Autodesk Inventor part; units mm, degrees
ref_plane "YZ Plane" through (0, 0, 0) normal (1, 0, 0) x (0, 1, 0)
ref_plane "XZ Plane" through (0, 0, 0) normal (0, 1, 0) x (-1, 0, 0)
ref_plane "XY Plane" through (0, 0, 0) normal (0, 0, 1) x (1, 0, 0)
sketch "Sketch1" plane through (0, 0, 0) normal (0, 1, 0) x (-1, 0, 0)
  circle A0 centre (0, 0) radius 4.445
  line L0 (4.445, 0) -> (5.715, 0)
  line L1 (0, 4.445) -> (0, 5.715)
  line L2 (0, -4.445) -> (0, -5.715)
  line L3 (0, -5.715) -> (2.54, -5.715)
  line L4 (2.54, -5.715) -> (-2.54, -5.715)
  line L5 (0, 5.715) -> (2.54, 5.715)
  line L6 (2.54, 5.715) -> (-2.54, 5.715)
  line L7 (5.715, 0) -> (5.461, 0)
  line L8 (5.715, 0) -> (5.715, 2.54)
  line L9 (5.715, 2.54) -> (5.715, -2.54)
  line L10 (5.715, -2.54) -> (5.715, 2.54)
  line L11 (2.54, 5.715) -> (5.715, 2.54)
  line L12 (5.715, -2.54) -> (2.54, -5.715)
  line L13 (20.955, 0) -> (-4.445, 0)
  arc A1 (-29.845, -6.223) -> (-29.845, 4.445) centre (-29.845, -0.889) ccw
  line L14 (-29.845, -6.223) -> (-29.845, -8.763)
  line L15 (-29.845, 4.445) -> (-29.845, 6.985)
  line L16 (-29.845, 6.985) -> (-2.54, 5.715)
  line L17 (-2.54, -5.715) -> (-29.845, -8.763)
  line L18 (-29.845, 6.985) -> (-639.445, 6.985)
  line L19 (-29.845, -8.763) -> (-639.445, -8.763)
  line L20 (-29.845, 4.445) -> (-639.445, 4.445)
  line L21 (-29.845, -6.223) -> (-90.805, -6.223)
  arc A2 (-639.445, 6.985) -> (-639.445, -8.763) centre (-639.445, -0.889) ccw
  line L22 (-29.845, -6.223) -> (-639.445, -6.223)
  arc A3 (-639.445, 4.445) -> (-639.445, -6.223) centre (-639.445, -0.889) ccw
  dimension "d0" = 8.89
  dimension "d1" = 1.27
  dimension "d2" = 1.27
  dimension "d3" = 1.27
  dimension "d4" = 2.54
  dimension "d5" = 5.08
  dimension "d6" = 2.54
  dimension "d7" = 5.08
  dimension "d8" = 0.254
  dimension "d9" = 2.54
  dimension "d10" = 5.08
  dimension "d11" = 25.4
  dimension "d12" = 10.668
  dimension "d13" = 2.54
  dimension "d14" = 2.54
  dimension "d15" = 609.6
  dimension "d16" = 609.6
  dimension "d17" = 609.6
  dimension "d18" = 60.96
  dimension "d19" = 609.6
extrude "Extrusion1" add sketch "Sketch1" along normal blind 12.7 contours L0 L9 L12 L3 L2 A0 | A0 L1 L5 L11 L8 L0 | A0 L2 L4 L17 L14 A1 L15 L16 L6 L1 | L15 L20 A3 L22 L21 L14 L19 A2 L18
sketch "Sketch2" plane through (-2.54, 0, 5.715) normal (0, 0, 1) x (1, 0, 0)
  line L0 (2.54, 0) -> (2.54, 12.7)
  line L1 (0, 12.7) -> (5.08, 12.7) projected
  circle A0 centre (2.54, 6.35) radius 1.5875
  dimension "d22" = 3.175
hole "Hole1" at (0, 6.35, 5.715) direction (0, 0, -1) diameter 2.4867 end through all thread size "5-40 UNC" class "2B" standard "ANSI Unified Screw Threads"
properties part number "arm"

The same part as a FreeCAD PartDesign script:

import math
import FreeCAD as App
import Part
import Sketcher
from FreeCAD import Vector
Q = App.Units.Quantity

doc = App.newDocument("Part")
params = doc.addObject("Spreadsheet::Sheet", "Params")
for row, (alias, value) in enumerate([
    ("sketch1_diameter", "0.35 in"),
    ("sketch1_width", "24 in"),
    ("sketch1_radius", "0.21 in"),
    ("sketch1_width2", "0.2 in"),
    ("pad1_length", "0.5 in"),
    ("hole_diameter", "0.0979016 in"),
], start=1):
    params.set(f"A{row}", alias)
    params.set(f"B{row}", "=" + value)
    params.setAlias(f"B{row}", alias)

body = doc.addObject("PartDesign::Body", "Body")

sketch1 = body.newObject("Sketcher::SketchObject", "Sketch")
sketch1.AttachmentSupport = (doc.getObject("XZ_Plane"), [""])
sketch1.MapMode = "FlatFace"
sketch1.addGeometry(Part.LineSegment(Vector(-5.7, -2.5, 0), Vector(-5.7, 2.5, 0)), False)
sketch1.addGeometry(Part.LineSegment(Vector(-5.7, 2.5, 0), Vector(-2.5, 5.7, 0)), False)
sketch1.addGeometry(Part.LineSegment(Vector(-2.5, 5.7, 0), Vector(2.5, 5.7, 0)), False)
sketch1.addGeometry(Part.LineSegment(Vector(2.5, 5.7, 0), Vector(29.8, 7, 0)), False)
sketch1.addGeometry(Part.LineSegment(Vector(29.8, 7, 0), Vector(639.4, 7, 0)), False)
sketch1.addGeometry(Part.ArcOfCircle(Part.Circle(Vector(639.4, -0.9, 0), Vector(0, 0, 1), 7.9), math.radians(-90), math.radians(90)), False)
sketch1.addGeometry(Part.LineSegment(Vector(639.4, -8.8, 0), Vector(29.8, -8.8, 0)), False)
sketch1.addGeometry(Part.LineSegment(Vector(29.8, -8.8, 0), Vector(2.5, -5.7, 0)), False)
sketch1.addGeometry(Part.LineSegment(Vector(2.5, -5.7, 0), Vector(-2.5, -5.7, 0)), False)
sketch1.addGeometry(Part.LineSegment(Vector(-2.5, -5.7, 0), Vector(-5.7, -2.5, 0)), False)
sketch1.addGeometry(Part.Circle(Vector(0, 0, 0), Vector(0, 0, 1), 4.4), False)
sketch1.addGeometry(Part.ArcOfCircle(Part.Circle(Vector(29.8, -0.9, 0), Vector(0, 0, 1), 5.3), math.radians(90), math.radians(270)), False)
sketch1.addGeometry(Part.LineSegment(Vector(29.8, -6.2, 0), Vector(639.4, -6.2, 0)), False)
sketch1.addGeometry(Part.ArcOfCircle(Part.Circle(Vector(639.4, -0.9, 0), Vector(0, 0, 1), 5.3), math.radians(-90), math.radians(90)), False)
sketch1.addGeometry(Part.LineSegment(Vector(639.4, 4.4, 0), Vector(29.8, 4.4, 0)), False)
sketch1.addConstraint(Sketcher.Constraint("Coincident", 0, 2, 1, 1))
sketch1.addConstraint(Sketcher.Constraint("Coincident", 1, 2, 2, 1))
sketch1.addConstraint(Sketcher.Constraint("Coincident", 2, 2, 3, 1))
sketch1.addConstraint(Sketcher.Constraint("Coincident", 3, 2, 4, 1))
sketch1.addConstraint(Sketcher.Constraint("Tangent", 4, 2, 5, 2))
sketch1.addConstraint(Sketcher.Constraint("Tangent", 5, 1, 6, 1))
sketch1.addConstraint(Sketcher.Constraint("Coincident", 6, 2, 7, 1))
sketch1.addConstraint(Sketcher.Constraint("Coincident", 7, 2, 8, 1))
sketch1.addConstraint(Sketcher.Constraint("Coincident", 8, 2, 9, 1))
sketch1.addConstraint(Sketcher.Constraint("Coincident", 9, 2, 0, 1))
sketch1.addConstraint(Sketcher.Constraint("Tangent", 11, 2, 12, 1))
sketch1.addConstraint(Sketcher.Constraint("Tangent", 12, 2, 13, 1))
sketch1.addConstraint(Sketcher.Constraint("Tangent", 13, 2, 14, 1))
sketch1.addConstraint(Sketcher.Constraint("Tangent", 14, 2, 11, 1))
sketch1.addConstraint(Sketcher.Constraint("Vertical", 0))
sketch1.addConstraint(Sketcher.Constraint("Horizontal", 2))
sketch1.addConstraint(Sketcher.Constraint("Horizontal", 4))
sketch1.addConstraint(Sketcher.Constraint("Horizontal", 6))
sketch1.addConstraint(Sketcher.Constraint("Horizontal", 8))
sketch1.addConstraint(Sketcher.Constraint("Horizontal", 12))
sketch1.addConstraint(Sketcher.Constraint("Horizontal", 14))
sketch1.addConstraint(Sketcher.Constraint("Coincident", 10, 3, -1, 1))
sketch1.addConstraint(Sketcher.Constraint("Coincident", 13, 3, 5, 3))
sketch1.addConstraint(Sketcher.Constraint("Symmetric", 1, 2, 7, 2, -1, 1))
sketch1.addConstraint(Sketcher.Constraint("Perpendicular", 1, 9))
sketch1.addConstraint(Sketcher.Constraint("Vertical", 11, 3, 3, 2))
sketch1.addConstraint(Sketcher.Constraint("Vertical", 3, 2, 6, 2))
sketch1.addConstraint(Sketcher.Constraint("Vertical", 2, 2, 7, 2))
sketch1.addConstraint(Sketcher.Constraint("Vertical", 1, 2, 8, 2))
sketch1.addConstraint(Sketcher.Constraint("Equal", 8, 0))
sketch1.addConstraint(Sketcher.Constraint("Equal", 1, 9))
sketch1.addConstraint(Sketcher.Constraint("Diameter", 10, Q("0.35 in")))
sketch1.addConstraint(Sketcher.Constraint("DistanceX", 4, 1, 4, 2, Q("24 in")))
sketch1.addConstraint(Sketcher.Constraint("Radius", 11, Q("0.21 in")))
sketch1.addConstraint(Sketcher.Constraint("DistanceX", 2, 1, 2, 2, Q("0.2 in")))
sketch1.addConstraint(Sketcher.Constraint("DistanceY", 6, 2, 11, 2, Q("0.1 in")))
sketch1.addConstraint(Sketcher.Constraint("DistanceY", 2, 2, 3, 2, Q("0.05 in")))
sketch1.addConstraint(Sketcher.Constraint("DistanceX", 0, 2, 11, 3, Q("1.4 in")))
sketch1.addConstraint(Sketcher.Constraint("Angle", 7, Q("173.6306 deg")))
sketch1.setExpression("Constraints[31]", "Params.sketch1_diameter")
sketch1.setExpression("Constraints[32]", "Params.sketch1_width")
sketch1.setExpression("Constraints[33]", "Params.sketch1_radius")
sketch1.setExpression("Constraints[34]", "Params.sketch1_width2")
pad1 = body.newObject("PartDesign::Pad", "Pad")
pad1.Profile = sketch1
pad1.setExpression("Length", "Params.pad1_length")
pad1.Reversed = True

sketch2 = body.newObject("Sketcher::SketchObject", "Sketch001")
sketch2.AttachmentSupport = (doc.getObject("XY_Plane"), [""])
sketch2.MapMode = "FlatFace"
sketch2.AttachmentOffset = App.Placement(Vector(0, 0, 0.225 * 25.4), App.Rotation())
sketch2.addGeometry(Part.Circle(Vector(0, 6.3, 0), Vector(0, 0, 1), 1.2), False)
sketch2.addConstraint(Sketcher.Constraint("PointOnObject", 0, 3, -2))
sketch2.addConstraint(Sketcher.Constraint("Diameter", 0, Q("0.0979 in")))
sketch2.addConstraint(Sketcher.Constraint("DistanceY", -1, 1, 0, 3, Q("0.25 in")))
doc.recompute()
hole = body.newObject("PartDesign::Hole", "Hole")
hole.Profile = sketch2
hole.ThreadType = "None"
hole.setExpression("Diameter", "Params.hole_diameter")
hole.DepthType = "ThroughAll"

doc.recompute()
